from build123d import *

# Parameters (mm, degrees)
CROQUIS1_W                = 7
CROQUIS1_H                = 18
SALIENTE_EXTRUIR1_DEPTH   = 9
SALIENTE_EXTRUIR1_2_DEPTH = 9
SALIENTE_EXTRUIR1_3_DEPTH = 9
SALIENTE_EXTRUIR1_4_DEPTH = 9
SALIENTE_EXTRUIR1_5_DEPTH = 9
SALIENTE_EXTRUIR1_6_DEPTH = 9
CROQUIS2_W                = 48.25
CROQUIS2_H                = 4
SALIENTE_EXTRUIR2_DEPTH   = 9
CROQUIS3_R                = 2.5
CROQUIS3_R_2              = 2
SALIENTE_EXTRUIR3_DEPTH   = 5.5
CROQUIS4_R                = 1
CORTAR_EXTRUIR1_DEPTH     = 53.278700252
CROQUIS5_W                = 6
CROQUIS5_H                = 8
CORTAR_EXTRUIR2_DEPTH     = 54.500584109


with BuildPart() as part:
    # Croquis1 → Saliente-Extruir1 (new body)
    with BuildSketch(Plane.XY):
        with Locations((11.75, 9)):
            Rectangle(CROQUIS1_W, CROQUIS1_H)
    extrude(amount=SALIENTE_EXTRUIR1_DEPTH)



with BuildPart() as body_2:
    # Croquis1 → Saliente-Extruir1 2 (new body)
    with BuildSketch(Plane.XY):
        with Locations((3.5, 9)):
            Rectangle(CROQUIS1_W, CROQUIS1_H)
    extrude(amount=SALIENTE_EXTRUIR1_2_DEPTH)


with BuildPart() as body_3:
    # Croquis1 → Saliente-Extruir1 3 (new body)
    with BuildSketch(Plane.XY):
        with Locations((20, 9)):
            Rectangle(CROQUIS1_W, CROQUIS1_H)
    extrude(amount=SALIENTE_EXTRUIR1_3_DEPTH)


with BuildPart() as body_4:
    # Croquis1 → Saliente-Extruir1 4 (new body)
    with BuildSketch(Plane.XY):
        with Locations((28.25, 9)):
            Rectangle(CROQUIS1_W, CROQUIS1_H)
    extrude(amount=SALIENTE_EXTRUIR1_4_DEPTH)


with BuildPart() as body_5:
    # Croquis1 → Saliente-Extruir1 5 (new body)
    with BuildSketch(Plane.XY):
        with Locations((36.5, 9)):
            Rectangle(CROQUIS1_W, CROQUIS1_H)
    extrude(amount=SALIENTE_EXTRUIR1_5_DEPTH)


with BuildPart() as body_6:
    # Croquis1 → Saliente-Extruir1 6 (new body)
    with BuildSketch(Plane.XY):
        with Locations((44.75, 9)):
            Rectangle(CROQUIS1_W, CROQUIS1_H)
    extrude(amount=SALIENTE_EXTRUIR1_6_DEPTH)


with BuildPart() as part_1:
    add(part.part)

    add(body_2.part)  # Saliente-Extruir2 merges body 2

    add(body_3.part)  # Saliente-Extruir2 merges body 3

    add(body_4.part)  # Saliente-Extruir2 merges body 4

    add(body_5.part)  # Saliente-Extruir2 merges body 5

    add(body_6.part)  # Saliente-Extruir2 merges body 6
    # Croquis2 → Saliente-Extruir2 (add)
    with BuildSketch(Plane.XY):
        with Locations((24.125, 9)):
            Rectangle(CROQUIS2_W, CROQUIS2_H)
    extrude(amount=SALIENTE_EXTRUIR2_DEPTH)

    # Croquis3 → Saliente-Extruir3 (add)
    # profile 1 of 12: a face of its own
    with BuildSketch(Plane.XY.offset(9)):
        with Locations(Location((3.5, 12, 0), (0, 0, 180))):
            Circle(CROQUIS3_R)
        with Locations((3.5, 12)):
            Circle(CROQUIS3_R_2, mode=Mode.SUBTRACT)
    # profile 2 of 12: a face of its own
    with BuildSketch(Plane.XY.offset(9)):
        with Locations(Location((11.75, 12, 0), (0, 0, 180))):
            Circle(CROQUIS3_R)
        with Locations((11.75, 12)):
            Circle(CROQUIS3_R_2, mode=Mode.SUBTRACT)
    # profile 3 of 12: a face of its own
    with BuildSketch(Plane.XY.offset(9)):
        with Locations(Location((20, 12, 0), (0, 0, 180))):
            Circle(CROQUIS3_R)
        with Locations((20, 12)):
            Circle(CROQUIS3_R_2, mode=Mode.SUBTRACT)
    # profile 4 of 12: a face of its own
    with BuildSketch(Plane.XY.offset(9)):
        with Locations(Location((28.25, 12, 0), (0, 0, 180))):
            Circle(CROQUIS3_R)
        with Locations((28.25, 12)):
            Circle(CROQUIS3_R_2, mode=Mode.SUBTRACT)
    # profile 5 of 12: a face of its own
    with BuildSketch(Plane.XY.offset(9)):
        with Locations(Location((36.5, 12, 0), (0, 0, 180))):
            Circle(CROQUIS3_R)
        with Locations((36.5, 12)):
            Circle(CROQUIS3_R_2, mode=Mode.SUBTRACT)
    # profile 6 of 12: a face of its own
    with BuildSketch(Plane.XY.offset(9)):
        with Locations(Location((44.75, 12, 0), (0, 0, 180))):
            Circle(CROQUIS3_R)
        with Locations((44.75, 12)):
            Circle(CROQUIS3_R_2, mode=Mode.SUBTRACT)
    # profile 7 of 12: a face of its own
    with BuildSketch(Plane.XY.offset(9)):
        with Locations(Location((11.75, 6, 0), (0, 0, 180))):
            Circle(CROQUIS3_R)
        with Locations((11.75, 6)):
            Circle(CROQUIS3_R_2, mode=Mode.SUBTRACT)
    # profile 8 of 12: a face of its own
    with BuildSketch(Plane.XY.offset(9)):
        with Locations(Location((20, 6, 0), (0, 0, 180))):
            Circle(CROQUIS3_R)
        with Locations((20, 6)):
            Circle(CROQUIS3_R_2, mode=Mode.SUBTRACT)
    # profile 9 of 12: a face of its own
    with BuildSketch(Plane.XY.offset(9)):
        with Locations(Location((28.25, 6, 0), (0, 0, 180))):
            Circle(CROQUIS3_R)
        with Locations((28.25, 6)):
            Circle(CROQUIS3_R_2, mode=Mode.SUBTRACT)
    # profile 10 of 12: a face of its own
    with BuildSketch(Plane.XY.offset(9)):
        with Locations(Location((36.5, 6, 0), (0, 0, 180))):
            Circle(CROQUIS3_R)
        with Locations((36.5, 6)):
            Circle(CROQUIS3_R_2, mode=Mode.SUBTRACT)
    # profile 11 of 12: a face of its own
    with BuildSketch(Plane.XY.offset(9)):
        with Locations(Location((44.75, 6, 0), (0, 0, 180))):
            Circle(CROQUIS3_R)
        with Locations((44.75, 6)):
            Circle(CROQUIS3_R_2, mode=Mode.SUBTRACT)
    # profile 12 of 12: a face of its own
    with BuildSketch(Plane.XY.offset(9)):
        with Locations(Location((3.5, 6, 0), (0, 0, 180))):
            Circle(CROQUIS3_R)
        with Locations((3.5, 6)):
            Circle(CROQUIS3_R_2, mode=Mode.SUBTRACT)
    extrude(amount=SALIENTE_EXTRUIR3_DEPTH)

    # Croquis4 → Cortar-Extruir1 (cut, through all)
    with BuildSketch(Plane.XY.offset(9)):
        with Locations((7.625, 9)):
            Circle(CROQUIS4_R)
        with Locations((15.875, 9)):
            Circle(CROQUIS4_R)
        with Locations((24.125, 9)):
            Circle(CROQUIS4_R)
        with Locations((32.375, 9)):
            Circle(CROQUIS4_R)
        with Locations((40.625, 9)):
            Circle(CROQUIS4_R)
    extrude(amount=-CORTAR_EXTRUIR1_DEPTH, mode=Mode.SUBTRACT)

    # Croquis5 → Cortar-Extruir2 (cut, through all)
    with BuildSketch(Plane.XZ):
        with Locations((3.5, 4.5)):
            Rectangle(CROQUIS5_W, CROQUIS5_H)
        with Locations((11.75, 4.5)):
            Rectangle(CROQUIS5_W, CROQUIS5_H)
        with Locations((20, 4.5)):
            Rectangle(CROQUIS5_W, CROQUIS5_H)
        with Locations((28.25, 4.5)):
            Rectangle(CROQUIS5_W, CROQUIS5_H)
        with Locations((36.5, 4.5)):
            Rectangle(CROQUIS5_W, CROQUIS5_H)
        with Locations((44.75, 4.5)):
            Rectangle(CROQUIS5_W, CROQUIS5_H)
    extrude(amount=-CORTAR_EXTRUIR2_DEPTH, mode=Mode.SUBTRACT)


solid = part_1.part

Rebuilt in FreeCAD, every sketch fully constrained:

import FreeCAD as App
import Part
import Sketcher
from FreeCAD import Vector


def add_polygon(sketch, points):
    """Adds a closed chain of lines whose ends are joined by coincident constraints."""
    first, n = sketch.GeometryCount, len(points)
    for a, b in zip(points, points[1:] + points[:1]):
        sketch.addGeometry(Part.LineSegment(App.Vector(*a, 0), App.Vector(*b, 0)), False)
    for i in range(n):
        sketch.addConstraint(Sketcher.Constraint("Coincident", first + i, 2, first + (i + 1) % n, 1))

doc = App.newDocument("Part")
body = doc.addObject("PartDesign::Body", "Body")

sketch1 = body.newObject("Sketcher::SketchObject", "Sketch")
sketch1.AttachmentSupport = (doc.getObject("XY_Plane"), [""])
sketch1.MapMode = "FlatFace"
add_polygon(sketch1, [(8, 18), (8, 0), (15, 0), (15, 18)])
sketch1.addConstraint([
    Sketcher.Constraint("Vertical", 0),
    Sketcher.Constraint("Horizontal", 1),
    Sketcher.Constraint("Vertical", 2),
    Sketcher.Constraint("Horizontal", 3),
    Sketcher.Constraint("PointOnObject", 0, 2, -1),
    Sketcher.Constraint("DistanceX", 1, 1, 1, 2, 7.0),
    Sketcher.Constraint("DistanceY", 0, 2, 0, 1, 18.0),
    Sketcher.Constraint("DistanceX", -1, 1, 0, 2, 8.25),
])
pad1 = body.newObject("PartDesign::Pad", "Pad")
pad1.Profile = sketch1
pad1.Length = 9
body2 = doc.addObject("PartDesign::Body", "Body001")

sketch2 = body2.newObject("Sketcher::SketchObject", "Sketch001")
sketch2.AttachmentSupport = (doc.getObject("XY_Plane001"), [""])
sketch2.MapMode = "FlatFace"
add_polygon(sketch2, [(0, 18), (0, 0), (7, 0), (7, 18)])
sketch2.addConstraint([
    Sketcher.Constraint("Vertical", 0),
    Sketcher.Constraint("Horizontal", 1),
    Sketcher.Constraint("Vertical", 2),
    Sketcher.Constraint("Horizontal", 3),
    Sketcher.Constraint("Coincident", 0, 2, -1, 1),
    Sketcher.Constraint("DistanceX", 1, 1, 1, 2, 7.0),
    Sketcher.Constraint("DistanceY", 0, 2, 0, 1, 18.0),
])
pad2 = body2.newObject("PartDesign::Pad", "Pad001")
pad2.Profile = sketch2
pad2.Length = 9
body3 = doc.addObject("PartDesign::Body", "Body002")

sketch3 = body3.newObject("Sketcher::SketchObject", "Sketch002")
sketch3.AttachmentSupport = (doc.getObject("XY_Plane002"), [""])
sketch3.MapMode = "FlatFace"
add_polygon(sketch3, [(16, 18), (16, 0), (24, 0), (24, 18)])
sketch3.addConstraint([
    Sketcher.Constraint("Vertical", 0),
    Sketcher.Constraint("Horizontal", 1),
    Sketcher.Constraint("Vertical", 2),
    Sketcher.Constraint("Horizontal", 3),
    Sketcher.Constraint("PointOnObject", 0, 2, -1),
    Sketcher.Constraint("DistanceX", 1, 1, 1, 2, 7.0),
    Sketcher.Constraint("DistanceY", 0, 2, 0, 1, 18.0),
    Sketcher.Constraint("DistanceX", -1, 1, 0, 2, 16.5),
])
pad3 = body3.newObject("PartDesign::Pad", "Pad002")
pad3.Profile = sketch3
pad3.Length = 9
body4 = doc.addObject("PartDesign::Body", "Body003")

sketch4 = body4.newObject("Sketcher::SketchObject", "Sketch003")
sketch4.AttachmentSupport = (doc.getObject("XY_Plane003"), [""])
sketch4.MapMode = "FlatFace"
add_polygon(sketch4, [(25, 18), (25, 0), (32, 0), (32, 18)])
sketch4.addConstraint([
    Sketcher.Constraint("Vertical", 0),
    Sketcher.Constraint("Horizontal", 1),
    Sketcher.Constraint("Vertical", 2),
    Sketcher.Constraint("Horizontal", 3),
    Sketcher.Constraint("PointOnObject", 0, 2, -1),
    Sketcher.Constraint("DistanceX", 1, 1, 1, 2, 7.0),
    Sketcher.Constraint("DistanceY", 0, 2, 0, 1, 18.0),
    Sketcher.Constraint("DistanceX", -1, 1, 0, 2, 24.75),
])
pad4 = body4.newObject("PartDesign::Pad", "Pad003")
pad4.Profile = sketch4
pad4.Length = 9
body5 = doc.addObject("PartDesign::Body", "Body004")

sketch5 = body5.newObject("Sketcher::SketchObject", "Sketch004")
sketch5.AttachmentSupport = (doc.getObject("XY_Plane004"), [""])
sketch5.MapMode = "FlatFace"
add_polygon(sketch5, [(33, 18), (33, 0), (40, 0), (40, 18)])
sketch5.addConstraint([
    Sketcher.Constraint("Vertical", 0),
    Sketcher.Constraint("Horizontal", 1),
    Sketcher.Constraint("Vertical", 2),
    Sketcher.Constraint("Horizontal", 3),
    Sketcher.Constraint("PointOnObject", 0, 2, -1),
    Sketcher.Constraint("DistanceX", 1, 1, 1, 2, 7.0),
    Sketcher.Constraint("DistanceY", 0, 2, 0, 1, 18.0),
    Sketcher.Constraint("DistanceX", -1, 1, 0, 2, 33.0),
])
pad5 = body5.newObject("PartDesign::Pad", "Pad004")
pad5.Profile = sketch5
pad5.Length = 9
body6 = doc.addObject("PartDesign::Body", "Body005")

sketch6 = body6.newObject("Sketcher::SketchObject", "Sketch005")
sketch6.AttachmentSupport = (doc.getObject("XY_Plane005"), [""])
sketch6.MapMode = "FlatFace"
add_polygon(sketch6, [(41, 18), (41, 0), (48, 0), (48, 18)])
sketch6.addConstraint([
    Sketcher.Constraint("Vertical", 0),
    Sketcher.Constraint("Horizontal", 1),
    Sketcher.Constraint("Vertical", 2),
    Sketcher.Constraint("Horizontal", 3),
    Sketcher.Constraint("PointOnObject", 0, 2, -1),
    Sketcher.Constraint("DistanceX", 1, 1, 1, 2, 7.0),
    Sketcher.Constraint("DistanceY", 0, 2, 0, 1, 18.0),
    Sketcher.Constraint("DistanceX", -1, 1, 0, 2, 41.25),
])
pad6 = body6.newObject("PartDesign::Pad", "Pad005")
pad6.Profile = sketch6
pad6.Length = 9
body.AllowCompound = True
doc.recompute()

boolean = body.newObject("PartDesign::Boolean", "Boolean")
boolean.Type = "Fuse"
boolean.addObjects([body2])
doc.recompute()

boolean2 = body.newObject("PartDesign::Boolean", "Boolean001")
boolean2.Type = "Fuse"
boolean2.addObjects([body3])
doc.recompute()

boolean3 = body.newObject("PartDesign::Boolean", "Boolean002")
boolean3.Type = "Fuse"
boolean3.addObjects([body4])
doc.recompute()

boolean4 = body.newObject("PartDesign::Boolean", "Boolean003")
boolean4.Type = "Fuse"
boolean4.addObjects([body5])
doc.recompute()

boolean5 = body.newObject("PartDesign::Boolean", "Boolean004")
boolean5.Type = "Fuse"
boolean5.addObjects([body6])

sketch7 = body.newObject("Sketcher::SketchObject", "Sketch006")
sketch7.AttachmentSupport = (doc.getObject("XY_Plane"), [""])
sketch7.MapMode = "FlatFace"
add_polygon(sketch7, [(0, 11), (0, 7), (48.2, 7), (48.2, 11)])
sketch7.addConstraint([
    Sketcher.Constraint("Vertical", 0),
    Sketcher.Constraint("Horizontal", 1),
    Sketcher.Constraint("Vertical", 2),
    Sketcher.Constraint("Horizontal", 3),
    Sketcher.Constraint("PointOnObject", 0, 2, -2),
    Sketcher.Constraint("DistanceY", 0, 2, 0, 1, 4.0),
    Sketcher.Constraint("DistanceY", -1, 1, 0, 2, 7.0),
    Sketcher.Constraint("DistanceX", 1, 1, 1, 2, 48.25),
])
pad7 = body.newObject("PartDesign::Pad", "Pad006")
pad7.Profile = sketch7
pad7.Length = 9

sketch8 = body.newObject("Sketcher::SketchObject", "Sketch007")
sketch8.AttachmentSupport = (doc.getObject("XY_Plane"), [""])
sketch8.MapMode = "FlatFace"
sketch8.AttachmentOffset = App.Placement(Vector(0, 0, 9), App.Rotation())
sketch8.addGeometry([
    Part.Circle(Vector(3.5, 12, 0), Vector(0, 0, 1), 2.5),
    Part.Circle(Vector(3.5, 12, 0), Vector(0, 0, 1), 2),
    Part.Circle(Vector(11.8, 12, 0), Vector(0, 0, 1), 2.5),
    Part.Circle(Vector(11.8, 12, 0), Vector(0, 0, 1), 2),
    Part.Circle(Vector(20, 12, 0), Vector(0, 0, 1), 2.5),
    Part.Circle(Vector(20, 12, 0), Vector(0, 0, 1), 2),
    Part.Circle(Vector(28.2, 12, 0), Vector(0, 0, 1), 2.5),
    Part.Circle(Vector(28.2, 12, 0), Vector(0, 0, 1), 2),
    Part.Circle(Vector(36.5, 12, 0), Vector(0, 0, 1), 2.5),
    Part.Circle(Vector(36.5, 12, 0), Vector(0, 0, 1), 2),
    Part.Circle(Vector(44.8, 12, 0), Vector(0, 0, 1), 2.5),
    Part.Circle(Vector(44.8, 12, 0), Vector(0, 0, 1), 2),
    Part.Circle(Vector(11.8, 6, 0), Vector(0, 0, 1), 2.5),
    Part.Circle(Vector(11.8, 6, 0), Vector(0, 0, 1), 2),
    Part.Circle(Vector(20, 6, 0), Vector(0, 0, 1), 2.5),
    Part.Circle(Vector(20, 6, 0), Vector(0, 0, 1), 2),
    Part.Circle(Vector(28.2, 6, 0), Vector(0, 0, 1), 2.5),
    Part.Circle(Vector(28.2, 6, 0), Vector(0, 0, 1), 2),
    Part.Circle(Vector(36.5, 6, 0), Vector(0, 0, 1), 2.5),
    Part.Circle(Vector(36.5, 6, 0), Vector(0, 0, 1), 2),
    Part.Circle(Vector(44.8, 6, 0), Vector(0, 0, 1), 2.5),
    Part.Circle(Vector(44.8, 6, 0), Vector(0, 0, 1), 2),
    Part.Circle(Vector(3.5, 6, 0), Vector(0, 0, 1), 2.5),
    Part.Circle(Vector(3.5, 6, 0), Vector(0, 0, 1), 2),
], False)
sketch8.addConstraint([
    Sketcher.Constraint("Coincident", 1, 3, 0, 3),
    Sketcher.Constraint("Coincident", 3, 3, 2, 3),
    Sketcher.Constraint("Coincident", 5, 3, 4, 3),
    Sketcher.Constraint("Coincident", 7, 3, 6, 3),
    Sketcher.Constraint("Coincident", 9, 3, 8, 3),
    Sketcher.Constraint("Coincident", 11, 3, 10, 3),
    Sketcher.Constraint("Coincident", 13, 3, 12, 3),
    Sketcher.Constraint("Coincident", 15, 3, 14, 3),
    Sketcher.Constraint("Coincident", 17, 3, 16, 3),
    Sketcher.Constraint("Coincident", 19, 3, 18, 3),
    Sketcher.Constraint("Coincident", 21, 3, 20, 3),
    Sketcher.Constraint("Coincident", 23, 3, 22, 3),
    Sketcher.Constraint("Equal", 0, 2),
    Sketcher.Constraint("Equal", 1, 3),
    Sketcher.Constraint("Equal", 2, 4),
    Sketcher.Constraint("Equal", 3, 5),
    Sketcher.Constraint("Equal", 4, 6),
    Sketcher.Constraint("Equal", 5, 7),
    Sketcher.Constraint("Equal", 6, 8),
    Sketcher.Constraint("Equal", 7, 9),
    Sketcher.Constraint("Equal", 8, 10),
    Sketcher.Constraint("Equal", 9, 11),
    Sketcher.Constraint("Equal", 10, 12),
    Sketcher.Constraint("Equal", 11, 13),
    Sketcher.Constraint("Equal", 12, 14),
    Sketcher.Constraint("Equal", 13, 15),
    Sketcher.Constraint("Equal", 14, 16),
    Sketcher.Constraint("Equal", 15, 17),
    Sketcher.Constraint("Equal", 16, 18),
    Sketcher.Constraint("Equal", 17, 19),
    Sketcher.Constraint("Equal", 18, 20),
    Sketcher.Constraint("Equal", 19, 21),
    Sketcher.Constraint("Equal", 20, 22),
    Sketcher.Constraint("Equal", 21, 23),
    Sketcher.Constraint("Horizontal", 1, 3, 2, 3),
    Sketcher.Constraint("Horizontal", 3, 3, 4, 3),
    Sketcher.Constraint("Horizontal", 5, 3, 6, 3),
    Sketcher.Constraint("Horizontal", 7, 3, 8, 3),
    Sketcher.Constraint("Horizontal", 9, 3, 10, 3),
    Sketcher.Constraint("Horizontal", 13, 3, 14, 3),
    Sketcher.Constraint("Horizontal", 15, 3, 16, 3),
    Sketcher.Constraint("Horizontal", 17, 3, 18, 3),
    Sketcher.Constraint("Horizontal", 19, 3, 20, 3),
    Sketcher.Constraint("Horizontal", 21, 3, 22, 3),
    Sketcher.Constraint("Vertical", 3, 3, 12, 3),
    Sketcher.Constraint("Vertical", 5, 3, 14, 3),
    Sketcher.Constraint("Vertical", 7, 3, 16, 3),
    Sketcher.Constraint("Vertical", 9, 3, 18, 3),
    Sketcher.Constraint("Vertical", 11, 3, 20, 3),
    Sketcher.Constraint("Vertical", 1, 3, 22, 3),
    Sketcher.Constraint("Diameter", 0, 5.0),
    Sketcher.Constraint("Diameter", 1, 4.0),
    Sketcher.Constraint("DistanceY", -1, 1, 0, 3, 12.0),
    Sketcher.Constraint("DistanceX", -1, 1, 4, 3, 20.0),
    Sketcher.Constraint("DistanceY", -1, 1, 12, 3, 6.0),
    Sketcher.Constraint("DistanceX", -1, 1, 0, 3, 3.5),
    Sketcher.Constraint("DistanceX", -1, 1, 8, 3, 36.5),
    Sketcher.Constraint("DistanceX", 2, 3, 6, 3, 16.5),
    Sketcher.Constraint("DistanceX", 6, 3, 10, 3, 16.5),
    Sketcher.Constraint("DistanceX", -1, 1, 2, 3, 11.75),
])
pad8 = body.newObject("PartDesign::Pad", "Pad007")
pad8.Profile = sketch8
pad8.Length = 5.5

sketch9 = body.newObject("Sketcher::SketchObject", "Sketch008")
sketch9.AttachmentSupport = (doc.getObject("XY_Plane"), [""])
sketch9.MapMode = "FlatFace"
sketch9.AttachmentOffset = App.Placement(Vector(0, 0, 9), App.Rotation())
sketch9.addGeometry([
    Part.Circle(Vector(7.6, 9, 0), Vector(0, 0, 1), 1),
    Part.Circle(Vector(15.9, 9, 0), Vector(0, 0, 1), 1),
    Part.Circle(Vector(24.1, 9, 0), Vector(0, 0, 1), 1),
    Part.Circle(Vector(32.4, 9, 0), Vector(0, 0, 1), 1),
    Part.Circle(Vector(40.6, 9, 0), Vector(0, 0, 1), 1),
], False)
sketch9.addConstraint([
    Sketcher.Constraint("Equal", 0, 1),
    Sketcher.Constraint("Equal", 1, 2),
    Sketcher.Constraint("Equal", 2, 3),
    Sketcher.Constraint("Equal", 3, 4),
    Sketcher.Constraint("Horizontal", 0, 3, 1, 3),
    Sketcher.Constraint("Horizontal", 1, 3, 2, 3),
    Sketcher.Constraint("Horizontal", 2, 3, 3, 3),
    Sketcher.Constraint("Horizontal", 3, 3, 4, 3),
    Sketcher.Constraint("Diameter", 0, 2.0),
    Sketcher.Constraint("DistanceY", -1, 1, 0, 3, 9.0),
    Sketcher.Constraint("DistanceX", 0, 3, 4, 3, 33.0),
    Sketcher.Constraint("DistanceX", 0, 3, 2, 3, 16.5),
    Sketcher.Constraint("DistanceX", 1, 3, 3, 3, 16.5),
    Sketcher.Constraint("DistanceX", 0, 3, 1, 3, 8.25),
    Sketcher.Constraint("DistanceX", -1, 1, 0, 3, 7.625),
])
pocket1 = body.newObject("PartDesign::Pocket", "Pocket")
pocket1.Profile = sketch9
pocket1.Type = "ThroughAll"

sketch10 = body.newObject("Sketcher::SketchObject", "Sketch009")
sketch10.AttachmentSupport = (doc.getObject("XZ_Plane"), [""])
sketch10.MapMode = "FlatFace"
add_polygon(sketch10, [(0, 8), (0, 0), (6, 0), (6, 8)])
add_polygon(sketch10, [(9, 8), (9, 0), (15, 0), (15, 8)])
add_polygon(sketch10, [(17, 8), (17, 0), (23, 0), (23, 8)])
add_polygon(sketch10, [(25, 8), (25, 0), (31, 0), (31, 8)])
add_polygon(sketch10, [(34, 8), (34, 0), (40, 0), (40, 8)])
add_polygon(sketch10, [(42, 8), (42, 0), (48, 0), (48, 8)])
sketch10.addConstraint([
    Sketcher.Constraint("Vertical", 0),
    Sketcher.Constraint("Horizontal", 1),
    Sketcher.Constraint("Vertical", 2),
    Sketcher.Constraint("Horizontal", 3),
    Sketcher.Constraint("Vertical", 4),
    Sketcher.Constraint("Horizontal", 5),
    Sketcher.Constraint("Vertical", 6),
    Sketcher.Constraint("Horizontal", 7),
    Sketcher.Constraint("Vertical", 8),
    Sketcher.Constraint("Horizontal", 9),
    Sketcher.Constraint("Vertical", 10),
    Sketcher.Constraint("Horizontal", 11),
    Sketcher.Constraint("Vertical", 12),
    Sketcher.Constraint("Horizontal", 13),
    Sketcher.Constraint("Vertical", 14),
    Sketcher.Constraint("Horizontal", 15),
    Sketcher.Constraint("Vertical", 16),
    Sketcher.Constraint("Horizontal", 17),
    Sketcher.Constraint("Vertical", 18),
    Sketcher.Constraint("Horizontal", 19),
    Sketcher.Constraint("Vertical", 20),
    Sketcher.Constraint("Horizontal", 21),
    Sketcher.Constraint("Vertical", 22),
    Sketcher.Constraint("Horizontal", 23),
    Sketcher.Constraint("Horizontal", 1, 2, 4, 2),
    Sketcher.Constraint("Horizontal", 3, 2, 6, 2),
    Sketcher.Constraint("Horizontal", 5, 2, 8, 2),
    Sketcher.Constraint("Horizontal", 7, 2, 10, 2),
    Sketcher.Constraint("Horizontal", 9, 2, 12, 2),
    Sketcher.Constraint("Horizontal", 11, 2, 14, 2),
    Sketcher.Constraint("Horizontal", 13, 2, 16, 2),
    Sketcher.Constraint("Horizontal", 15, 2, 18, 2),
    Sketcher.Constraint("Horizontal", 17, 2, 20, 2),
    Sketcher.Constraint("Horizontal", 19, 2, 22, 2),
    Sketcher.Constraint("Equal", 3, 5),
    Sketcher.Constraint("Equal", 7, 9),
    Sketcher.Constraint("Equal", 11, 13),
    Sketcher.Constraint("Equal", 15, 17),
    Sketcher.Constraint("Equal", 19, 21),
    Sketcher.Constraint("DistanceX", 1, 1, 1, 2, 6.0),
    Sketcher.Constraint("DistanceY", 0, 2, 0, 1, 8.0),
    Sketcher.Constraint("DistanceX", -1, 1, 8, 2, 17.0),
    Sketcher.Constraint("DistanceX", -1, 1, 0, 2, 0.5),
    Sketcher.Constraint("DistanceY", -1, 1, 0, 2, 0.5),
    Sketcher.Constraint("DistanceX", -1, 1, 16, 2, 33.5),
    Sketcher.Constraint("DistanceX", 5, 2, 12, 2, 10.5),
    Sketcher.Constraint("DistanceX", 13, 2, 20, 2, 10.5),
    Sketcher.Constraint("DistanceX", -1, 1, 4, 2, 8.75),
])
pocket2 = body.newObject("PartDesign::Pocket", "Pocket001")
pocket2.Profile = sketch10
pocket2.Type = "ThroughAll"

doc.recompute()
